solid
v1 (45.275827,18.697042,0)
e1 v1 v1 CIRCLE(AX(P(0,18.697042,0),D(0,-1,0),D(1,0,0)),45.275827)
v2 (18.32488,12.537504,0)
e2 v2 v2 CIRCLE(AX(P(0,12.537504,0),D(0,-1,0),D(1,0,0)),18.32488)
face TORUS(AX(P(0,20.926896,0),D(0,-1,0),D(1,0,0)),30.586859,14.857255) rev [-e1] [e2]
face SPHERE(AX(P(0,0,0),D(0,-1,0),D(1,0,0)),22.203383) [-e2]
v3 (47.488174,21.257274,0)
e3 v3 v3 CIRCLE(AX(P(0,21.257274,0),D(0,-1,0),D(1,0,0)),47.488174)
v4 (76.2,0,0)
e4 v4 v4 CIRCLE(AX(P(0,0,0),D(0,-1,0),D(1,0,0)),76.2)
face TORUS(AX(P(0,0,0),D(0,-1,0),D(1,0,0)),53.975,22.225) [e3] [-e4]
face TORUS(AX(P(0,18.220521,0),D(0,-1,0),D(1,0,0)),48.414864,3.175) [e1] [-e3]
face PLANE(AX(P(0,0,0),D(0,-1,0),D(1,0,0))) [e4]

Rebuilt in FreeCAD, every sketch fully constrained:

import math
import FreeCAD as App
import Part
import Sketcher
Q = App.Units.Quantity

doc = App.newDocument("Part")
body = doc.addObject("PartDesign::Body", "Body")

# Sketch on XY plane
sketch1 = doc.addObject("Sketcher::SketchObject", "Sketch")
body.addObject(sketch1)
sketch1.AttachmentSupport = (doc.XY_Plane, [""])
sketch1.MapMode = "FlatFace"
sketch1.addGeometry([
    Part.LineSegment(App.Vector(0, 0, 0), App.Vector(76.2, 0, 0)),  # 0
    Part.ArcOfCircle(Part.Circle(App.Vector(54, 0, 0), App.Vector(0, 0, 1), 22.2), math.radians(0), math.radians(107)),  # 1
    Part.ArcOfCircle(Part.Circle(App.Vector(48.4, 18.2, 0), App.Vector(0, 0, 1), 3.2), math.radians(107), math.radians(171)),  # 2
    Part.ArcOfCircle(Part.Circle(App.Vector(30.6, 20.9, 0), App.Vector(0, 0, 1), 14.9), math.radians(-146), math.radians(-9)),  # 3
    Part.ArcOfCircle(Part.Circle(App.Vector(0, 0, 0), App.Vector(0, 0, 1), 22.2), math.radians(34), math.radians(90)),  # 4
    Part.LineSegment(App.Vector(0, 22.2, 0), App.Vector(0, 0, 0)),  # 5
], False)
sketch1.addConstraint([
    Sketcher.Constraint("Coincident", 0, 2, 1, 1),
    Sketcher.Constraint("Tangent", 1, 2, 2, 1),
    Sketcher.Constraint("Tangent", 2, 2, 3, 2),
    Sketcher.Constraint("Tangent", 3, 1, 4, 1),
    Sketcher.Constraint("Coincident", 4, 2, 5, 1),
    Sketcher.Constraint("Coincident", 5, 2, 0, 1),
    Sketcher.Constraint("Horizontal", 0),
    Sketcher.Constraint("Vertical", 5),
    Sketcher.Constraint("Coincident", 4, 3, -1, 1),
    Sketcher.Constraint("Coincident", 5, 2, -1, 1),
    Sketcher.Constraint("PointOnObject", 1, 3, -1),
    Sketcher.Constraint("DistanceX", 0, 1, 0, 2, Q("3 in")),
    Sketcher.Constraint("Radius", 1, Q("0.875 in")),
    Sketcher.Constraint("Radius", 2, Q("0.125 in")),
    Sketcher.Constraint("Radius", 3, 14.857255),
    Sketcher.Constraint("Radius", 4, 22.203383),
    Sketcher.Constraint("DistanceY", -1, 1, 2, 3, 18.220521),
])
revolution = doc.addObject("PartDesign::Revolution", "Revolution")
body.addObject(revolution)
revolution.Profile = sketch1
revolution.ReferenceAxis = (sketch1, ["V_Axis"])
revolution.Angle = 360

doc.recompute()
